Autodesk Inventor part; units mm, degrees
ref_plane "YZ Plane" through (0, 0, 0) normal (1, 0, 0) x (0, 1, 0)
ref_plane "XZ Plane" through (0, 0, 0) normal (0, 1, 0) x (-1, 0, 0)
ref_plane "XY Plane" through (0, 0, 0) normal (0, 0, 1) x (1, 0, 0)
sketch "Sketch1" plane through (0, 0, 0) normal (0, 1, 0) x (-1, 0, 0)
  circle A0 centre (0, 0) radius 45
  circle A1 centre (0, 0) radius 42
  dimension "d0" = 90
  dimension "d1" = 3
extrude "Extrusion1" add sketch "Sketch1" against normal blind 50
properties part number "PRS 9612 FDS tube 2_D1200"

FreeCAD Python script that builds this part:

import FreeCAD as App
import Part
import Sketcher
Q = App.Units.Quantity

doc = App.newDocument("Part")
params = doc.addObject("Spreadsheet::Sheet", "Params")
for row, (alias, value) in enumerate([
    ("sketch1_diameter", "90 mm"),
    ("sketch1_diameter2", "84 mm"),
    ("pad1_length", "50 mm"),
], start=1):
    params.set(f"A{row}", alias)
    params.set(f"B{row}", "=" + value)
    params.setAlias(f"B{row}", alias)

body = doc.addObject("PartDesign::Body", "Body")

# Sketch on XZ plane
sketch1 = body.newObject("Sketcher::SketchObject", "Sketch")
sketch1.AttachmentSupport = (doc.getObject("XZ_Plane"), [""])
sketch1.MapMode = "FlatFace"
sketch1.addGeometry([
    Part.Circle(App.Vector(0, 0, 0), App.Vector(0, 0, 1), 45),
    Part.Circle(App.Vector(0, 0, 0), App.Vector(0, 0, 1), 42),
], False)
sketch1.addConstraint([
    Sketcher.Constraint("Coincident", 0, 3, -1, 1),
    Sketcher.Constraint("Coincident", 1, 3, -1, 1),
    Sketcher.Constraint("Diameter", 0, Q("90 mm")),
    Sketcher.Constraint("Diameter", 1, Q("84 mm")),
])
sketch1.setExpression("Constraints[2]", "Params.sketch1_diameter")
sketch1.setExpression("Constraints[3]", "Params.sketch1_diameter2")
pad1 = body.newObject("PartDesign::Pad", "Pad")
pad1.Profile = sketch1
pad1.setExpression("Length", "Params.pad1_length")

doc.recompute()
